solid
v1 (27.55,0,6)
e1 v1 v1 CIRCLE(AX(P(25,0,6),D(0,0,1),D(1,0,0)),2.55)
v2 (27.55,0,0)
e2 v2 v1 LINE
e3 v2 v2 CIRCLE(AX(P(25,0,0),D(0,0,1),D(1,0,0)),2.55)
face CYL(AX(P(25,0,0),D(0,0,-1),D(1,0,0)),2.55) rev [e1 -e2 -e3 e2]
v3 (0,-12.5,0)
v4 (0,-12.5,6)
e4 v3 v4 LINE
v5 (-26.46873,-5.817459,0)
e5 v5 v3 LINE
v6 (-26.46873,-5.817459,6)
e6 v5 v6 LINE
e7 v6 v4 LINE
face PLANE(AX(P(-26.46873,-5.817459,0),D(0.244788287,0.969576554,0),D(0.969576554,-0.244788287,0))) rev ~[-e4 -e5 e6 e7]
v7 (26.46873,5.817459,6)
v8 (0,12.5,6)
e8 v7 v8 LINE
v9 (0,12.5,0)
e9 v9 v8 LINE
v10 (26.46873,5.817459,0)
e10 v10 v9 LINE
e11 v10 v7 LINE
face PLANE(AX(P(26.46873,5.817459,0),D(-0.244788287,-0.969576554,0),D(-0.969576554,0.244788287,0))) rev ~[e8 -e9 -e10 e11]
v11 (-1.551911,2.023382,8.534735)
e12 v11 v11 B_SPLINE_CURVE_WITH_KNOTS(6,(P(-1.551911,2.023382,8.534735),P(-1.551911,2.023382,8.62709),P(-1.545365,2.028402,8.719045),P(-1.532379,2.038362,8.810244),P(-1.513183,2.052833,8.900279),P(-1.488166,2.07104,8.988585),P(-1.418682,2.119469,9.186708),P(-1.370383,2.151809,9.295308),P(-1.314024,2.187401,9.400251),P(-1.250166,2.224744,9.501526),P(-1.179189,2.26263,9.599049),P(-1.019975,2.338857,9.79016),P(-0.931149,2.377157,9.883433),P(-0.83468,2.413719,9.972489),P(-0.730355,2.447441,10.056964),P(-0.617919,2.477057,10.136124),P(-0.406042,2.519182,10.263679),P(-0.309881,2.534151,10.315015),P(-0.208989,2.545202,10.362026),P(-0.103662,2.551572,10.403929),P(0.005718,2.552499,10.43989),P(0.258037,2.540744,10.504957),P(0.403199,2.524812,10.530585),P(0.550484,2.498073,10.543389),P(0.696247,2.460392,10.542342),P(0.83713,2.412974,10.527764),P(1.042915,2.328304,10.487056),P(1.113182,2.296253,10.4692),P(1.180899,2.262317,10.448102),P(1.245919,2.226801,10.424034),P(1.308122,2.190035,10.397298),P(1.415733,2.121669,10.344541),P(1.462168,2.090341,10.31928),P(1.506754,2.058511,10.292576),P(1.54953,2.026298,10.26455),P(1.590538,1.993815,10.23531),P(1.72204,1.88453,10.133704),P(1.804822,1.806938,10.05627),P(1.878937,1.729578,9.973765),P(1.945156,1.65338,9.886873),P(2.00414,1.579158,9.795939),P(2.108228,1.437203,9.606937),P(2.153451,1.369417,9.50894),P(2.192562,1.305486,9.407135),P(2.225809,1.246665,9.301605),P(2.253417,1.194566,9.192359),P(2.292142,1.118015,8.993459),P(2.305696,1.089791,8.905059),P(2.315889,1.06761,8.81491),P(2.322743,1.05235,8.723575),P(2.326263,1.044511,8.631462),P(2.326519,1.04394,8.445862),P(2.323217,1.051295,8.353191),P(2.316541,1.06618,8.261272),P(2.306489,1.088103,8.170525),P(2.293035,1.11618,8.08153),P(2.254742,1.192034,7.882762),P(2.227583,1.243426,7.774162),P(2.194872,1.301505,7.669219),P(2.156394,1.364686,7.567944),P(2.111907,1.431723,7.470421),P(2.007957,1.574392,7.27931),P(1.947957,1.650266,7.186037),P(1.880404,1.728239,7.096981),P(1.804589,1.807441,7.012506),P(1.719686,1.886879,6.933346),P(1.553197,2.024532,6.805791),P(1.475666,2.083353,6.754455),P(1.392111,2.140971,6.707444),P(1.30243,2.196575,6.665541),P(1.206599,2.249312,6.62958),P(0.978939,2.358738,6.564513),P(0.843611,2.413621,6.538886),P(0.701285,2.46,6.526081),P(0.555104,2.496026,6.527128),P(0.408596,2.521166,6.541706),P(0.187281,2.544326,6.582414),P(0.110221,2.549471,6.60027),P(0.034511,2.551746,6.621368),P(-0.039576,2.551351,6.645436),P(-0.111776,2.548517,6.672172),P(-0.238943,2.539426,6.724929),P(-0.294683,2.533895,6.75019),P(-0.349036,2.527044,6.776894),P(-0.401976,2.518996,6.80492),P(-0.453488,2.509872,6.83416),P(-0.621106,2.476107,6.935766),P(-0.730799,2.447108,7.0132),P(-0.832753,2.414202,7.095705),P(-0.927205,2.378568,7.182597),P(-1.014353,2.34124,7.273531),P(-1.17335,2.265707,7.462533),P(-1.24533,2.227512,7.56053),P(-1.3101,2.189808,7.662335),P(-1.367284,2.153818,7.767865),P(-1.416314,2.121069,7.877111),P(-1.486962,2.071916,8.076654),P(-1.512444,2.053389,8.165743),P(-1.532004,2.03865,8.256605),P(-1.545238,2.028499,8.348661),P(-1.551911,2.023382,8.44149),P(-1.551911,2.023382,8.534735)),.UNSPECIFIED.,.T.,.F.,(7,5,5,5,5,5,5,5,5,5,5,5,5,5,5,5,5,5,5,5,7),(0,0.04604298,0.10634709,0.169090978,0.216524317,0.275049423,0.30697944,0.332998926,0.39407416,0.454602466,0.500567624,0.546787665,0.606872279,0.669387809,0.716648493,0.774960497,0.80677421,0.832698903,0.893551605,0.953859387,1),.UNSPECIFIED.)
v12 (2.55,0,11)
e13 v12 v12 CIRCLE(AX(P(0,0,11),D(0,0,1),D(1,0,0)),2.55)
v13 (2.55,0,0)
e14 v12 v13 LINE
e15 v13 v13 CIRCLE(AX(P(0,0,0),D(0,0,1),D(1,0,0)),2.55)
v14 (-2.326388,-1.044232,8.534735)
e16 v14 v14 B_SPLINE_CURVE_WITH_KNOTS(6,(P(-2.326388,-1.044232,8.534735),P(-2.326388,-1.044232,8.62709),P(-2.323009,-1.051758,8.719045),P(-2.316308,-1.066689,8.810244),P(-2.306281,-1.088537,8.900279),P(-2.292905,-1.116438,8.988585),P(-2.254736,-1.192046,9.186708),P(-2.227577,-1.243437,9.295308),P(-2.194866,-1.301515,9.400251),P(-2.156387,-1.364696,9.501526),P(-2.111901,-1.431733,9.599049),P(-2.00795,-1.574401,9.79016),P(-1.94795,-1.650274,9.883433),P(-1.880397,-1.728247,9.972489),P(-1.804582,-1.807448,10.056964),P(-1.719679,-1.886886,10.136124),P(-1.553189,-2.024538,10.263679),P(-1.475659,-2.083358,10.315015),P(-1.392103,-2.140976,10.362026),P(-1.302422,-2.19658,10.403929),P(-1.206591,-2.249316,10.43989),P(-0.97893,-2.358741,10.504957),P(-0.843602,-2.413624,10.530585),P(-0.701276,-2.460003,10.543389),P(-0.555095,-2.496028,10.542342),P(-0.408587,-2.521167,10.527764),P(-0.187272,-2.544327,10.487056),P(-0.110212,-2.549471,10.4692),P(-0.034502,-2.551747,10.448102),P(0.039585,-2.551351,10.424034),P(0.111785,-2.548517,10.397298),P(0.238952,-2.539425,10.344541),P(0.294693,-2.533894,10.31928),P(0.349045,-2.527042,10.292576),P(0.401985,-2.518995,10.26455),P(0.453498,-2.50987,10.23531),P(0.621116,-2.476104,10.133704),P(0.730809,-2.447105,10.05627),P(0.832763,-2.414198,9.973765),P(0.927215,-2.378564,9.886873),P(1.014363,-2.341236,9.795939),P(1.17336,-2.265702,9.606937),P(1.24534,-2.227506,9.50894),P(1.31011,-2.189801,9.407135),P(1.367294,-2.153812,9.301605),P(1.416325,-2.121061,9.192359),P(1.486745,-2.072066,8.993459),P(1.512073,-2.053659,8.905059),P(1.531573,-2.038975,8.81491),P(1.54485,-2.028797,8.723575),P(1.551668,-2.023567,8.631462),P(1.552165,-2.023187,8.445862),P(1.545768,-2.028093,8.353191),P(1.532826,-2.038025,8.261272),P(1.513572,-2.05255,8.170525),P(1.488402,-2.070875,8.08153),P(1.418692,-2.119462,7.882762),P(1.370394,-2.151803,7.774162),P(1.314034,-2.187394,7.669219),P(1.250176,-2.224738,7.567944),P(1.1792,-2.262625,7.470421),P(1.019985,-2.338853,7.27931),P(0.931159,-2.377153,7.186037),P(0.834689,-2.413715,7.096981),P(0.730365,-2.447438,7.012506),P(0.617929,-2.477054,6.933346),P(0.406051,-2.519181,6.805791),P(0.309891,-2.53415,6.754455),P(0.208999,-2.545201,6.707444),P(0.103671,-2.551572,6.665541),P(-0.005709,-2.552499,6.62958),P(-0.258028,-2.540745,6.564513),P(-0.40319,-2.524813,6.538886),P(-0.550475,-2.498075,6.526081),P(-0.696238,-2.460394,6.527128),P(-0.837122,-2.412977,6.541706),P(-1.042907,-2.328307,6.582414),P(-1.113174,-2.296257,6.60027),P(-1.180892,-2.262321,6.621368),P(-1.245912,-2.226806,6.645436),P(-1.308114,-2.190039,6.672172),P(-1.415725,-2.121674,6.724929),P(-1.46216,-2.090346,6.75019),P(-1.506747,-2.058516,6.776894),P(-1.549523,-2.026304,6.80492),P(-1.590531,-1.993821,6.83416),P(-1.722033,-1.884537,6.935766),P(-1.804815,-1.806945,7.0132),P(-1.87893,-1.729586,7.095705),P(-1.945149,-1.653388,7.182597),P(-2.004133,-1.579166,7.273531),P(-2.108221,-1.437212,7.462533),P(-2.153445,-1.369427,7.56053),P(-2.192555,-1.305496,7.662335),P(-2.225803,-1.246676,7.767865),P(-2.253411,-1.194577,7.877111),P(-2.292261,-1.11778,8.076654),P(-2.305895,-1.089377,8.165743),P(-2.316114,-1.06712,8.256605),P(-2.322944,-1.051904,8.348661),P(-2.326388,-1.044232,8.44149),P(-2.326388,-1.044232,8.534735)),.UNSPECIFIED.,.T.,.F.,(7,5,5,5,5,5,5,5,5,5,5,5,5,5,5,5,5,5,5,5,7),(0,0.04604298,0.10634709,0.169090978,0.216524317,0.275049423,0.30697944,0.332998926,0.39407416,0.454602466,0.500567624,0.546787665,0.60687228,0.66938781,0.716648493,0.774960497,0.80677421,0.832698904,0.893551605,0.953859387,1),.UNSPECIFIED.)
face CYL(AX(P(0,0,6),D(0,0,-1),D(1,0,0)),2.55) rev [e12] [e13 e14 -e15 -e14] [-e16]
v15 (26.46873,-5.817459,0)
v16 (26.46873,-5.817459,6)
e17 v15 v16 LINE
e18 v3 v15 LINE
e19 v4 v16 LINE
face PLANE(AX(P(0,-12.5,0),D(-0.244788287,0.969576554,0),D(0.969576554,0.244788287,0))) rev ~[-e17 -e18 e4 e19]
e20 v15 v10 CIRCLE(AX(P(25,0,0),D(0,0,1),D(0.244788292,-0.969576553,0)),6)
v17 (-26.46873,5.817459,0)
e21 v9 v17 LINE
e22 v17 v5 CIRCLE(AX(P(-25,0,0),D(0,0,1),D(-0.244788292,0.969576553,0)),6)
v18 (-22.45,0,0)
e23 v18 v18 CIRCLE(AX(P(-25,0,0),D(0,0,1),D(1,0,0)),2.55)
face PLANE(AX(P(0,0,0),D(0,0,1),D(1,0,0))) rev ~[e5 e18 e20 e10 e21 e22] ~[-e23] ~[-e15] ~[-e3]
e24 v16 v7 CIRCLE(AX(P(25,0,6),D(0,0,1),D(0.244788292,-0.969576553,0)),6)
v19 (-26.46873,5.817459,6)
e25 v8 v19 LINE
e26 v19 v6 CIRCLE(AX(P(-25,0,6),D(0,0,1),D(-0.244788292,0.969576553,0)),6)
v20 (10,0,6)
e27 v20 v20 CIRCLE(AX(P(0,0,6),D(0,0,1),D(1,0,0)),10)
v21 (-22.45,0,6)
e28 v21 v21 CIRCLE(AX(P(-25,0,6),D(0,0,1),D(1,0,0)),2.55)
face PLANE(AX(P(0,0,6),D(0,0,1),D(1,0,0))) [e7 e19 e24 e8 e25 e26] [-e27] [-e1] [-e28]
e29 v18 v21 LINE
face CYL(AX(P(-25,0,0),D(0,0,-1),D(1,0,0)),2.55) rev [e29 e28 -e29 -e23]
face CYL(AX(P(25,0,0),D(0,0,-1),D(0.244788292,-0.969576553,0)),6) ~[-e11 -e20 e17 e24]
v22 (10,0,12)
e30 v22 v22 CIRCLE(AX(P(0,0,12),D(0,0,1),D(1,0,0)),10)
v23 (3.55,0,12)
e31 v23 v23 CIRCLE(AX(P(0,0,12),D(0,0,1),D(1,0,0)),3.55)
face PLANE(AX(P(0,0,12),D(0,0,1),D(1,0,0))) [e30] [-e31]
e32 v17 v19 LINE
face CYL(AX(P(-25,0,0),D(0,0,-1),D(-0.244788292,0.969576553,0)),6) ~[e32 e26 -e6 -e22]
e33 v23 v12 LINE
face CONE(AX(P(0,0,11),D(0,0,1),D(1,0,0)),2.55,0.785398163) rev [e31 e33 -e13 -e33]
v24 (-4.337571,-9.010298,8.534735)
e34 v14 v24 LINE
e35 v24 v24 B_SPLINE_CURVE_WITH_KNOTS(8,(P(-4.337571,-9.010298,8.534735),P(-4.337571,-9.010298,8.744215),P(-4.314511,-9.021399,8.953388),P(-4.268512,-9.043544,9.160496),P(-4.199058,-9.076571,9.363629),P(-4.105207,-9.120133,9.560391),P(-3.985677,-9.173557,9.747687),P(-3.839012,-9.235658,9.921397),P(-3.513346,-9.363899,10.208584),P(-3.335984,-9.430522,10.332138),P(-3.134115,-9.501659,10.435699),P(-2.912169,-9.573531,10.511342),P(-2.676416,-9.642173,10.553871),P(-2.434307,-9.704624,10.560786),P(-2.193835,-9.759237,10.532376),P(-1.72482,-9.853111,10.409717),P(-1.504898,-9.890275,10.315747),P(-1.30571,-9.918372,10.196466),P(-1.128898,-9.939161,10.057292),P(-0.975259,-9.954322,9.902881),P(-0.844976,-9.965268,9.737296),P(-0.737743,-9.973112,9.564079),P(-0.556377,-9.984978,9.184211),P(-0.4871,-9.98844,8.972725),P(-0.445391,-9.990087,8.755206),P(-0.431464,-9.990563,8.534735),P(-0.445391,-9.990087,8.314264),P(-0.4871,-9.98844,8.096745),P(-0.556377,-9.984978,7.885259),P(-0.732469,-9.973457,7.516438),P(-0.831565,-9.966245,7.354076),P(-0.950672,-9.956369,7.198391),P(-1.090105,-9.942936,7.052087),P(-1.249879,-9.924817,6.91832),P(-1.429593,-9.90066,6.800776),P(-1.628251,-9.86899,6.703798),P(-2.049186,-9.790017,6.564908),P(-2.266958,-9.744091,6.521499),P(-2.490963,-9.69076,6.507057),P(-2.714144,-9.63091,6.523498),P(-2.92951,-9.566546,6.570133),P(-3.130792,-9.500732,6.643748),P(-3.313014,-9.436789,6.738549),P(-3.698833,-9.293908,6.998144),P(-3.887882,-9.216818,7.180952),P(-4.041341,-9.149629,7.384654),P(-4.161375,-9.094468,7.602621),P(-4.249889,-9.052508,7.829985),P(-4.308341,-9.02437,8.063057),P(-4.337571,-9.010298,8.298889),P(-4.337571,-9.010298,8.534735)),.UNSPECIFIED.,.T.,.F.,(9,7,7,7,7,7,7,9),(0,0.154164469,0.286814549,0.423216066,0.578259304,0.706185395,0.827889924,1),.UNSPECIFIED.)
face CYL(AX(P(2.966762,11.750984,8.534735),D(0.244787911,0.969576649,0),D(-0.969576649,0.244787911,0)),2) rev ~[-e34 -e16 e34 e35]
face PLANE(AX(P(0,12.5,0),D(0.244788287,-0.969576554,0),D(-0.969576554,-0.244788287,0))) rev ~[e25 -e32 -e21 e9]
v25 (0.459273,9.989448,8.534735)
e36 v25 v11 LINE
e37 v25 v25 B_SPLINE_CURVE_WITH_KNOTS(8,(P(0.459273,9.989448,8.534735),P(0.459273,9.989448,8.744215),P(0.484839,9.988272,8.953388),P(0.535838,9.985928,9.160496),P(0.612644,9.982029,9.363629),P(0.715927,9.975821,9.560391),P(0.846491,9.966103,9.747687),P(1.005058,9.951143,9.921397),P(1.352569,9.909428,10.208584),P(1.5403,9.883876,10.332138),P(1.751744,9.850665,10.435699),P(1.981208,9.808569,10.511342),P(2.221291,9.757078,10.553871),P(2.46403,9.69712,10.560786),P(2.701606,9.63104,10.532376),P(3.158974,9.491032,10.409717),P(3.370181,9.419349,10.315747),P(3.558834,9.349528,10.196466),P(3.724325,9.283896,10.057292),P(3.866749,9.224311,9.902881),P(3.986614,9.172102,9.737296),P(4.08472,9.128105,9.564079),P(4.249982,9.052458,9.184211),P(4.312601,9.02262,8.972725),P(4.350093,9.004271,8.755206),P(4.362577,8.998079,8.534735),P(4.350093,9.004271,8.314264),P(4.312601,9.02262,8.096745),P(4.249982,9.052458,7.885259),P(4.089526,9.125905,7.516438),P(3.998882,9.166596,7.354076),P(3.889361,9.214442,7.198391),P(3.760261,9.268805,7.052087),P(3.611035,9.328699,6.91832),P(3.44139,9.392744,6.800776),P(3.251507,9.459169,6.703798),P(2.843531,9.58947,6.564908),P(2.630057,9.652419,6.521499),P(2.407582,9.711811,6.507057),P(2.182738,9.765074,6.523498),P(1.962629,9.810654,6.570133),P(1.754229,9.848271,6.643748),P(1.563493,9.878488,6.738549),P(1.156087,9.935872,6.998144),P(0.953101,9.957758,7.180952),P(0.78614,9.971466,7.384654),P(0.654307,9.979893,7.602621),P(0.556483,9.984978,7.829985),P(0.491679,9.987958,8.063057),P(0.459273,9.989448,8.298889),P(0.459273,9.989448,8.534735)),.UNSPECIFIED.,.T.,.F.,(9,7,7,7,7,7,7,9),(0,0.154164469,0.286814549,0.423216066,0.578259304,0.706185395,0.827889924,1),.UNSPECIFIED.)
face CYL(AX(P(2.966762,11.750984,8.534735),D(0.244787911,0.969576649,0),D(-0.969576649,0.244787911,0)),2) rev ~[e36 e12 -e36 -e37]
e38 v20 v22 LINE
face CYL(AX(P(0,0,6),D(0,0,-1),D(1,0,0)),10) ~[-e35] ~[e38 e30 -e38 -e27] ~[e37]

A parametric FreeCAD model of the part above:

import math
import FreeCAD as App
import Part
import Sketcher
Q = App.Units.Quantity


def edges_at(feature, points):
    """Names of the edges that pass closest to the given points."""
    edges = feature.Shape.Edges
    near = lambda p: min(range(len(edges)), key=lambda i: edges[i].distToShape(Part.Vertex(*p))[0])
    return sorted({f"Edge{near(p) + 1}" for p in points})

doc = App.newDocument("Part")
params = doc.addObject("Spreadsheet::Sheet", "Params")
for row, (alias, value) in enumerate([
    ("sketch1_radius", "6 mm"),
    ("sketch1_diameter", "5.1 mm"),
    ("pad1_length", "6 mm"),
    ("sketch2_diameter", "20 mm"),
    ("sketch2_diameter2", "5.1 mm"),
    ("pad2_length", "6 mm"),
    ("chamfer_size", "1 mm"),
    ("sketch3_diameter", "4 mm"),
], start=1):
    params.set(f"A{row}", alias)
    params.set(f"B{row}", "=" + value)
    params.setAlias(f"B{row}", alias)

body = doc.addObject("PartDesign::Body", "Body")

# Sketch on XY plane
sketch1 = body.newObject("Sketcher::SketchObject", "Sketch")
sketch1.AttachmentSupport = (doc.getObject("XY_Plane"), [""])
sketch1.MapMode = "FlatFace"
sketch1.addGeometry([
    Part.ArcOfCircle(Part.Circle(App.Vector(25, 0, 0), App.Vector(0, 0, 1), 6), math.radians(-76), math.radians(76)),  # 0
    Part.LineSegment(App.Vector(26.5, 5.8, 0), App.Vector(0, 12.5, 0)),  # 1
    Part.LineSegment(App.Vector(0, 12.5, 0), App.Vector(-26.5, 5.8, 0)),  # 2
    Part.ArcOfCircle(Part.Circle(App.Vector(-25, 0, 0), App.Vector(0, 0, 1), 6), math.radians(104), math.radians(256)),  # 3
    Part.LineSegment(App.Vector(-26.5, -5.8, 0), App.Vector(0, -12.5, 0)),  # 4
    Part.LineSegment(App.Vector(0, -12.5, 0), App.Vector(26.5, -5.8, 0)),  # 5
    Part.Circle(App.Vector(-25, 0, 0), App.Vector(0, 0, 1), 2.5),  # 6
    Part.Circle(App.Vector(0, 0, 0), App.Vector(0, 0, 1), 2.5),  # 7
    Part.Circle(App.Vector(25, 0, 0), App.Vector(0, 0, 1), 2.5),  # 8
], False)
sketch1.addConstraint([
    Sketcher.Constraint("Tangent", 0, 2, 1, 1),
    Sketcher.Constraint("Coincident", 1, 2, 2, 1),
    Sketcher.Constraint("Tangent", 2, 2, 3, 1),
    Sketcher.Constraint("Tangent", 3, 2, 4, 1),
    Sketcher.Constraint("Coincident", 4, 2, 5, 1),
    Sketcher.Constraint("Tangent", 5, 2, 0, 1),
    Sketcher.Constraint("Coincident", 7, 3, -1, 1),
    Sketcher.Constraint("Coincident", 6, 3, 3, 3),
    Sketcher.Constraint("Coincident", 8, 3, 0, 3),
    Sketcher.Constraint("Equal", 0, 3),
    Sketcher.Constraint("Equal", 6, 7),
    Sketcher.Constraint("Equal", 7, 8),
    Sketcher.Constraint("Symmetric", 0, 3, 3, 3, -1, 1),
    Sketcher.Constraint("Symmetric", 1, 2, 4, 2, -1, 1),
    Sketcher.Constraint("Symmetric", 0, 2, 2, 2, -2),
    Sketcher.Constraint("Radius", 0, Q("6 mm")),
    Sketcher.Constraint("Diameter", 6, Q("5.1 mm")),
    Sketcher.Constraint("DistanceX", -1, 1, 0, 3, Q("25 mm")),
    Sketcher.Constraint("DistanceY", 4, 2, 1, 2, Q("25 mm")),
])
sketch1.setExpression("Constraints[15]", "Params.sketch1_radius")
sketch1.setExpression("Constraints[16]", "Params.sketch1_diameter")
pad1 = body.newObject("PartDesign::Pad", "Pad")
pad1.Profile = sketch1
pad1.setExpression("Length", "Params.pad1_length")

# Sketch on XY plane
sketch2 = body.newObject("Sketcher::SketchObject", "Sketch001")
sketch2.AttachmentSupport = (doc.getObject("XY_Plane"), [""])
sketch2.MapMode = "FlatFace"
sketch2.AttachmentOffset = App.Placement(App.Vector(0, 0, 6), App.Rotation())
sketch2.addGeometry([
    Part.Circle(App.Vector(0, 0, 0), App.Vector(0, 0, 1), 10),
    Part.Circle(App.Vector(0, 0, 0), App.Vector(0, 0, 1), 2.5),
], False)
sketch2.addConstraint([
    Sketcher.Constraint("Coincident", 0, 3, -1, 1),
    Sketcher.Constraint("Coincident", 1, 3, -1, 1),
    Sketcher.Constraint("Diameter", 0, Q("20 mm")),
    Sketcher.Constraint("Diameter", 1, Q("5.1 mm")),
])
sketch2.setExpression("Constraints[2]", "Params.sketch2_diameter")
sketch2.setExpression("Constraints[3]", "Params.sketch2_diameter2")
pad2 = body.newObject("PartDesign::Pad", "Pad001")
pad2.Profile = sketch2
pad2.setExpression("Length", "Params.pad2_length")
doc.recompute()

chamfer = body.newObject("PartDesign::Chamfer", "Chamfer")
chamfer.Base = (pad2, edges_at(pad2, [(-2.55, 0, 12)]))
chamfer.setExpression("Size", "Params.chamfer_size")

# Sketch on an angled plane
sketch3 = body.newObject("Sketcher::SketchObject", "Sketch002")
sketch3.Placement = App.Placement(App.Vector(2.966762, 11.750984, 0), App.Rotation(App.Vector(-0.969576649, 0.244787911, 0), App.Vector(0, 0, 1), App.Vector(0.244787911, 0.969576649, 0), "ZXY"))
sketch3.addGeometry(Part.Circle(App.Vector(0, 8.5, 0), App.Vector(0, 0, 1), 2), False)
sketch3.addConstraint([
    Sketcher.Constraint("PointOnObject", 0, 3, -2),
    Sketcher.Constraint("Diameter", 0, Q("4 mm")),
    Sketcher.Constraint("DistanceY", -1, 1, 0, 3, Q("8.534735 mm")),
])
sketch3.setExpression("Constraints[1]", "Params.sketch3_diameter")
pocket1 = body.newObject("PartDesign::Pocket", "Pocket")
pocket1.Profile = sketch3
pocket1.Type = "ThroughAll"

doc.recompute()
